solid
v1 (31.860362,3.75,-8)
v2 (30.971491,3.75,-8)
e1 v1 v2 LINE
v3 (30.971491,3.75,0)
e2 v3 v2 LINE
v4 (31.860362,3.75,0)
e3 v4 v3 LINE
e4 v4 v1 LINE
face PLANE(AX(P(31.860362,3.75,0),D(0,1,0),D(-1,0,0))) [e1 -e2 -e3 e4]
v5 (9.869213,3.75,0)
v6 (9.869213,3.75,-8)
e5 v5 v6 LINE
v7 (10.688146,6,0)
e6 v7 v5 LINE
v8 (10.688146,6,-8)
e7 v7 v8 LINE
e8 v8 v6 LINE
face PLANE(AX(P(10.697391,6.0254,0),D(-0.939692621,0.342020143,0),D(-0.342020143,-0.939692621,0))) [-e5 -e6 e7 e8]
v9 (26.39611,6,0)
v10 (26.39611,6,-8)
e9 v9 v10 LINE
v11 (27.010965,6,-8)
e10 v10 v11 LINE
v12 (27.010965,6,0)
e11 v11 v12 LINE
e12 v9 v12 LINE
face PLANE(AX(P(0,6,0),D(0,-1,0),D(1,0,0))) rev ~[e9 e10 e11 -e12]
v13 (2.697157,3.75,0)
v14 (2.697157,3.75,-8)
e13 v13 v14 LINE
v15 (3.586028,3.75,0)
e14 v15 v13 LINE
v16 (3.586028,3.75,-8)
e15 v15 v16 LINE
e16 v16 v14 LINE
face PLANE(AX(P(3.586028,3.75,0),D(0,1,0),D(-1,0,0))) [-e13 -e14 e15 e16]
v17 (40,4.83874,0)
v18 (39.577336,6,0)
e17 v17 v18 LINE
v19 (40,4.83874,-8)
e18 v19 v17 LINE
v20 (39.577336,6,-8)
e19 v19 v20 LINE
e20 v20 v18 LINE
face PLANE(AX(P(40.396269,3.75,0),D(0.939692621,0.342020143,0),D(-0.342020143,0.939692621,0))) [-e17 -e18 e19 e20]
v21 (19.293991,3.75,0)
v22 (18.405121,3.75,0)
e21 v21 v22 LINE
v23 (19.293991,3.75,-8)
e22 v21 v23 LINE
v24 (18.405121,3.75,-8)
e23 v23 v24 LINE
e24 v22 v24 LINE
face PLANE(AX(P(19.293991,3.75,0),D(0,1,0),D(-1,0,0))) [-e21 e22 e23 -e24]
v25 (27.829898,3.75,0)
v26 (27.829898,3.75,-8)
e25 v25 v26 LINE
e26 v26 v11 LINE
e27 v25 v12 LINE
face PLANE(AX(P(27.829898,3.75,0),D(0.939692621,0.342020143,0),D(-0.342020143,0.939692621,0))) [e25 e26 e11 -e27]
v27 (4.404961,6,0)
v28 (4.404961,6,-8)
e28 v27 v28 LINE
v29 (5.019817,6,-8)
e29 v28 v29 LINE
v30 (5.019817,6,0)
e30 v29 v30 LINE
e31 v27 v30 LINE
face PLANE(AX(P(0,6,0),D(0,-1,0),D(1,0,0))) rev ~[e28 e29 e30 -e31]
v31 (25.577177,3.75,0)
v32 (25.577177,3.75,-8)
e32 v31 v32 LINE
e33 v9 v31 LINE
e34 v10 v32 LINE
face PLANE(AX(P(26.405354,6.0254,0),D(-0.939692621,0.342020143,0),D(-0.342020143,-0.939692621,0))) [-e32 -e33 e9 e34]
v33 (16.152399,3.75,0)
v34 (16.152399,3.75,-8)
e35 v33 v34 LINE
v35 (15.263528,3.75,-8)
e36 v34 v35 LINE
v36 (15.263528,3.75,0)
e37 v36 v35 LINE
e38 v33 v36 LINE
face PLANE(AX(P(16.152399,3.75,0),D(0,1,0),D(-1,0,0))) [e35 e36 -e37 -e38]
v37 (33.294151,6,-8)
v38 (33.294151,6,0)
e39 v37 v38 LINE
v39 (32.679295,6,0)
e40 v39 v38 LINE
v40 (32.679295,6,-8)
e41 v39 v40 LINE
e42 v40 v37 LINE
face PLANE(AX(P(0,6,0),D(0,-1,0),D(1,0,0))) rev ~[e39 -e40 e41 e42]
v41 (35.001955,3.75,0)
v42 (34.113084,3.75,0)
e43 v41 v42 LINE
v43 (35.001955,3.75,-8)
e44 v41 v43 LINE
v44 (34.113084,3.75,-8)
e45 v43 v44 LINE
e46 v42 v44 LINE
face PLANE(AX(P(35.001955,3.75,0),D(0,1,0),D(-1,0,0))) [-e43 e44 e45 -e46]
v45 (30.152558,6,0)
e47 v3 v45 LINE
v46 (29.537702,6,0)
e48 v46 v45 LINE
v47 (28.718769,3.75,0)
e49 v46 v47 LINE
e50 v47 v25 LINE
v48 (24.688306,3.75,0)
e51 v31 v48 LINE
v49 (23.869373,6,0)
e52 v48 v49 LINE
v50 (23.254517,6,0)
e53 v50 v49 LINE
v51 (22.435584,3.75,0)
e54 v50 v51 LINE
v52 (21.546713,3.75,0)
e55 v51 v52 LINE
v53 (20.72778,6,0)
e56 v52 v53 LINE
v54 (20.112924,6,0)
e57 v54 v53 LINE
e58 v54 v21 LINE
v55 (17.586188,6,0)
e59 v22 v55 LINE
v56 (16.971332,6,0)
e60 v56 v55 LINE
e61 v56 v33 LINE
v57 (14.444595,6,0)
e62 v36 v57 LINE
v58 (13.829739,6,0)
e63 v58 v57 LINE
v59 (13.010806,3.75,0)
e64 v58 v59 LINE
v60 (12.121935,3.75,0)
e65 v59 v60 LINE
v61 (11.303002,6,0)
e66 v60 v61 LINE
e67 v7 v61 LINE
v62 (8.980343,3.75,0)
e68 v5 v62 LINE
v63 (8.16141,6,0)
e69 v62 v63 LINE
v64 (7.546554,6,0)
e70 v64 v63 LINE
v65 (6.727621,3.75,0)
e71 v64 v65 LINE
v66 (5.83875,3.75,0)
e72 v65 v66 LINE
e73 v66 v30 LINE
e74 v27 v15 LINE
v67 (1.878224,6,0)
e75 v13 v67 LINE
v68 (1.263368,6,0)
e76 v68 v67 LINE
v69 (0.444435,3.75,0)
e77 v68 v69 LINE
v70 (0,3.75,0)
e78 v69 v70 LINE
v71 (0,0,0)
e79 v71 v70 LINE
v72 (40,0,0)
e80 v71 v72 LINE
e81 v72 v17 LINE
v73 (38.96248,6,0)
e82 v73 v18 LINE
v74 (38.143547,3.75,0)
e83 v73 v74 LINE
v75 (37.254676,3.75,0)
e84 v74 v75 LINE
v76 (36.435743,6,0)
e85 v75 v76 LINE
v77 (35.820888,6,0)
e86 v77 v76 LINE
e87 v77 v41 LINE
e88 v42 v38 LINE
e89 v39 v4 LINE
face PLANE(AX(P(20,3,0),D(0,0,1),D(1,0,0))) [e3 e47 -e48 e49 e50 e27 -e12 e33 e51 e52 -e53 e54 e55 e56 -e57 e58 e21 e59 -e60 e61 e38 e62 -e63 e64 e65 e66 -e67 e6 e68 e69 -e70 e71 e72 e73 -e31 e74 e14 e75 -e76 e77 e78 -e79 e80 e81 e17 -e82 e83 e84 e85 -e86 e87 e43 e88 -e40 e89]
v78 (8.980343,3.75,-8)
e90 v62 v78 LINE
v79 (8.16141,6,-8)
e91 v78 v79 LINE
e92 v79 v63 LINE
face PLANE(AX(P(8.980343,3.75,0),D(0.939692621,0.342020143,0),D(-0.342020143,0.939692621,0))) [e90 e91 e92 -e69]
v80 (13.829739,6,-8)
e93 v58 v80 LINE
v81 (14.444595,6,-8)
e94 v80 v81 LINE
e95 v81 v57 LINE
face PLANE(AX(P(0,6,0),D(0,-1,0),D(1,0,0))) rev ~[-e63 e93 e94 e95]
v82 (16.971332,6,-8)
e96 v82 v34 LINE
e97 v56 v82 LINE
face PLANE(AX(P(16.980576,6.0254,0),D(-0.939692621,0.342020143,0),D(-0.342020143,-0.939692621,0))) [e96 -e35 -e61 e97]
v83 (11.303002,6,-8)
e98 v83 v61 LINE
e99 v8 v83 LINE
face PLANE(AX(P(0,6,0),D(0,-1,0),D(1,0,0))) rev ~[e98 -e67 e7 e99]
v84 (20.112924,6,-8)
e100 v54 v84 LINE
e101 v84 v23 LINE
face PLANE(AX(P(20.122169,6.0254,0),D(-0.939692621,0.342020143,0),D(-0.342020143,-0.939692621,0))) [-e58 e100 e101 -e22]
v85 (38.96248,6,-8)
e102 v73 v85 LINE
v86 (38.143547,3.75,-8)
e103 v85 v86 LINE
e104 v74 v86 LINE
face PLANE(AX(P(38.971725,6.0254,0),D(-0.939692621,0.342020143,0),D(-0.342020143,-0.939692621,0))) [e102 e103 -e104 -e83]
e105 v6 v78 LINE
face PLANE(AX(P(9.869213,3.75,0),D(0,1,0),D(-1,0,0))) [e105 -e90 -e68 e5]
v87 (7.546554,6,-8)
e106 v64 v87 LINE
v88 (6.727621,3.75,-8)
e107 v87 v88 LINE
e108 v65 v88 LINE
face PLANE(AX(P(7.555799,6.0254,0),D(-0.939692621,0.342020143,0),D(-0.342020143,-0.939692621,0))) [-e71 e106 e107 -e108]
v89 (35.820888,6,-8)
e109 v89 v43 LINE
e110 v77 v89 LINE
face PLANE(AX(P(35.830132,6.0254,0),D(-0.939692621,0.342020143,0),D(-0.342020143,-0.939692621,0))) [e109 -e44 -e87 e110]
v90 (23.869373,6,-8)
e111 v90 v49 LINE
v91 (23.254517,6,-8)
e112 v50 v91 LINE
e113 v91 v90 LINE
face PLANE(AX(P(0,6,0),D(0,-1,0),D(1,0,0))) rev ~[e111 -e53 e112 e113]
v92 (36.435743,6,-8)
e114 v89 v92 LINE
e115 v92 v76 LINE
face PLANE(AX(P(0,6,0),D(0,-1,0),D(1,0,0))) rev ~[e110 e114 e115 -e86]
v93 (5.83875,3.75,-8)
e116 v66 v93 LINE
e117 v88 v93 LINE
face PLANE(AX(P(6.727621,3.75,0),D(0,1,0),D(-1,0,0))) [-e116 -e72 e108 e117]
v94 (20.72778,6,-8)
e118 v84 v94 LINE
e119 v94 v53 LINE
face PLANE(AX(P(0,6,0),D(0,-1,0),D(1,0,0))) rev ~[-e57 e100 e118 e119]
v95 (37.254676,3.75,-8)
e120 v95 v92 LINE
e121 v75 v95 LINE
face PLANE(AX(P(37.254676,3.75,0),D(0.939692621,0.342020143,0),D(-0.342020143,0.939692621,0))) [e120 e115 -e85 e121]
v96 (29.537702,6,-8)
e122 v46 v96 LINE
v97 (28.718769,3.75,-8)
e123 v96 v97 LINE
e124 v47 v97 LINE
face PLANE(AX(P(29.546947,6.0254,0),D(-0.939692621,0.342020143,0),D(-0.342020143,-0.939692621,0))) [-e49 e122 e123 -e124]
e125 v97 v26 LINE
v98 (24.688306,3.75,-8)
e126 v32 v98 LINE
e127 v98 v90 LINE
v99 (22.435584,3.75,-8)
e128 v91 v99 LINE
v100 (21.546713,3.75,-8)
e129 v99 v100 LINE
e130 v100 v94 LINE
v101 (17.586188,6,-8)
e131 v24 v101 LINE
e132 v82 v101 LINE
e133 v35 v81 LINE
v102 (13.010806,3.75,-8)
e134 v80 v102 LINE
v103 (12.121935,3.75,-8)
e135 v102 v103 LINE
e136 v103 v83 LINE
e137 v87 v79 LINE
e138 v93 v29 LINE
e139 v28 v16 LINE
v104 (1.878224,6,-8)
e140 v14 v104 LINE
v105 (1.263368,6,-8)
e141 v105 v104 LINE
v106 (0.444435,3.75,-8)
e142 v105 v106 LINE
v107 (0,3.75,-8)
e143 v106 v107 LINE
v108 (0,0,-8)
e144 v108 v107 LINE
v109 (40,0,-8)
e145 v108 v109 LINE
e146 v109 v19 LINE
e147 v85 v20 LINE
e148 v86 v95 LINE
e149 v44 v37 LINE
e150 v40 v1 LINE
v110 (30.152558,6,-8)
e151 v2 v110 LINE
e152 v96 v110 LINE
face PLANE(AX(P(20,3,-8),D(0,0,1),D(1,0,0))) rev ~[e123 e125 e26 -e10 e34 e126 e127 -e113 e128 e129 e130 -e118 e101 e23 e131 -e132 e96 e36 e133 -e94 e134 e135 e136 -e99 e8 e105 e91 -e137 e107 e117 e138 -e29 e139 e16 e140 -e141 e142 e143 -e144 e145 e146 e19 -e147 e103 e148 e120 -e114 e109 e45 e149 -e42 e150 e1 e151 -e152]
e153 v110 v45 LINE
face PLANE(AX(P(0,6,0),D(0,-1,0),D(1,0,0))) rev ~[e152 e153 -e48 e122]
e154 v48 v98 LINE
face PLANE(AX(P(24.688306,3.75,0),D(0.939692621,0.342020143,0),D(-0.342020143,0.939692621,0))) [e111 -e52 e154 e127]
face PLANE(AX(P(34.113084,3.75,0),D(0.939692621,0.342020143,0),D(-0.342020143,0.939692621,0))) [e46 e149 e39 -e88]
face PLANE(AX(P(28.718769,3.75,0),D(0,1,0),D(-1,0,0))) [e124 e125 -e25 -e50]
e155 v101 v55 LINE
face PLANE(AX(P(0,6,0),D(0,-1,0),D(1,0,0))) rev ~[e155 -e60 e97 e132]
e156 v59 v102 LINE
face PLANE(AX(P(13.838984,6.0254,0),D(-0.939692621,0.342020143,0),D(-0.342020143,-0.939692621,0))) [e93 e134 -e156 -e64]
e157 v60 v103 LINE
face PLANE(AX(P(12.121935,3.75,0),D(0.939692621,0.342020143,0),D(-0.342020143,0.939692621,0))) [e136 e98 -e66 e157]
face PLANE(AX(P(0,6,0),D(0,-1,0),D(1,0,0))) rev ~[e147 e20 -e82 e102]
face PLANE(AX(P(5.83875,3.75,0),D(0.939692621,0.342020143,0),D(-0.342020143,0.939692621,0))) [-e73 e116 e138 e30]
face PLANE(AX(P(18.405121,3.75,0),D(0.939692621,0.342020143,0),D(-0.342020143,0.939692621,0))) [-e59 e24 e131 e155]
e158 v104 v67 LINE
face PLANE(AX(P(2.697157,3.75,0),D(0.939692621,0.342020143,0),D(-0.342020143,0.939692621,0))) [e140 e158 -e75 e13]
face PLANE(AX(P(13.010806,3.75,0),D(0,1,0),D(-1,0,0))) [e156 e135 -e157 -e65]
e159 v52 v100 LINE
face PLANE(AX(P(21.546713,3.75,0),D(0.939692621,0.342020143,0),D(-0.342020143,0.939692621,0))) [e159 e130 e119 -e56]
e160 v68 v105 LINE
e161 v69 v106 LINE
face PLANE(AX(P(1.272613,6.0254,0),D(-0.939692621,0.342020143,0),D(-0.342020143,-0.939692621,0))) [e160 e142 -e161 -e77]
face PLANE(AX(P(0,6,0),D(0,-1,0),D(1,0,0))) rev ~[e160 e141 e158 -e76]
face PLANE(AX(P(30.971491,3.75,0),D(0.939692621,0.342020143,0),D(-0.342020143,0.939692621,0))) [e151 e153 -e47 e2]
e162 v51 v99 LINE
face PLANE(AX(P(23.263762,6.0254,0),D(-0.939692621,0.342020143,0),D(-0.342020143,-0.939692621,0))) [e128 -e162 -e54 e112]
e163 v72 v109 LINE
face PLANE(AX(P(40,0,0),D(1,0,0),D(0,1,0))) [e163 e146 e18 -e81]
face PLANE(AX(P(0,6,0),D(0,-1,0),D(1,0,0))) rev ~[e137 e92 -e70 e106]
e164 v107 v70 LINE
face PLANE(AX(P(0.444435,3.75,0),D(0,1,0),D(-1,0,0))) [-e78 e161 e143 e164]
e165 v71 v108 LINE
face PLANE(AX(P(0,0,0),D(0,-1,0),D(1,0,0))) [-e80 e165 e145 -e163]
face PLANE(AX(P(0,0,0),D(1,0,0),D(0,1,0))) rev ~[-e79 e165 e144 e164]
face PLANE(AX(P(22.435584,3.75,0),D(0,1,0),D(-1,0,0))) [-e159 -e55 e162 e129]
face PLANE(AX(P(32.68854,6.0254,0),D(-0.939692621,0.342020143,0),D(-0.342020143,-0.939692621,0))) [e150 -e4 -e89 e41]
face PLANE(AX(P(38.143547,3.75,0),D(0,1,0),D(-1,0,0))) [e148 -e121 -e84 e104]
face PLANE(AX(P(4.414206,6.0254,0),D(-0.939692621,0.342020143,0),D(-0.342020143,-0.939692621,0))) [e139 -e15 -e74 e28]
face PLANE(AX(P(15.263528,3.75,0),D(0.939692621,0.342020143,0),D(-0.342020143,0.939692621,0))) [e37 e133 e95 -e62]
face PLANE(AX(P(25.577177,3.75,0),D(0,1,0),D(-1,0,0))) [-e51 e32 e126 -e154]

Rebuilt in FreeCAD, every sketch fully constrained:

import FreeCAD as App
import Part
import Sketcher
from FreeCAD import Vector
Q = App.Units.Quantity


def add_polygon(sketch, points):
    """Adds a closed chain of lines whose ends are joined by coincident constraints."""
    first, n = sketch.GeometryCount, len(points)
    for a, b in zip(points, points[1:] + points[:1]):
        sketch.addGeometry(Part.LineSegment(App.Vector(*a, 0), App.Vector(*b, 0)), False)
    for i in range(n):
        sketch.addConstraint(Sketcher.Constraint("Coincident", first + i, 2, first + (i + 1) % n, 1))

doc = App.newDocument("Part")
params = doc.addObject("Spreadsheet::Sheet", "Params")
for row, (alias, value) in enumerate([
    ("sketch1_width", "40 mm"),
    ("sketch1_height", "6 mm"),
    ("pad1_length", "8 mm"),
    ("linearpattern_pitch", "3.141593 mm"),
], start=1):
    params.set(f"A{row}", alias)
    params.set(f"B{row}", "=" + value)
    params.setAlias(f"B{row}", alias)

body = doc.addObject("PartDesign::Body", "Body")

# Sketch on XY plane
sketch1 = body.newObject("Sketcher::SketchObject", "Sketch")
sketch1.AttachmentSupport = (doc.getObject("XY_Plane"), [""])
sketch1.MapMode = "FlatFace"
add_polygon(sketch1, [(0, 6), (0, 0), (40, 0), (40, 6)])  # lines 0-3
sketch1.addConstraint([
    Sketcher.Constraint("Vertical", 0),
    Sketcher.Constraint("Horizontal", 1),
    Sketcher.Constraint("Vertical", 2),
    Sketcher.Constraint("Horizontal", 3),
    Sketcher.Constraint("Coincident", 0, 2, -1, 1),
    Sketcher.Constraint("DistanceX", 1, 1, 1, 2, Q("40 mm")),
    Sketcher.Constraint("DistanceY", 0, 2, 0, 1, Q("6 mm")),
])
sketch1.setExpression("Constraints[9]", "Params.sketch1_width")
sketch1.setExpression("Constraints[10]", "Params.sketch1_height")
pad1 = body.newObject("PartDesign::Pad", "Pad")
pad1.Profile = sketch1
pad1.setExpression("Length", "Params.pad1_length")
pad1.Reversed = True

# Sketch on XY plane
sketch2 = body.newObject("Sketcher::SketchObject", "Sketch001")
sketch2.AttachmentSupport = (doc.getObject("XY_Plane"), [""])
sketch2.MapMode = "FlatFace"
add_polygon(sketch2, [(-0.4, 3.8), (0.4, 3.8), (1.3, 6), (-1.3, 6)])  # lines 0-3
sketch2.addConstraint([
    Sketcher.Constraint("Horizontal", 0),
    Sketcher.Constraint("Horizontal", 2),
    Sketcher.Constraint("Equal", 1, 3),
    Sketcher.Constraint("Angle", 1, Q("70 deg")),
    Sketcher.Constraint("DistanceY", -1, 1, 0, 2, Q("3.75 mm")),
    Sketcher.Constraint("DistanceX", 0, 1, 0, 2, Q("0.888871 mm")),
    Sketcher.Constraint("DistanceY", -1, 1, 1, 2, Q("6.0254 mm")),
    Sketcher.Constraint("DistanceX", -1, 1, 0, 2, Q("0.444435 mm")),
])
pocket1 = body.newObject("PartDesign::Pocket", "Pocket")
pocket1.Profile = sketch2
pocket1.Type = "ThroughAll"
doc.recompute()

linearpattern = body.newObject("PartDesign::LinearPattern", "LinearPattern")
linearpattern.Originals = [pocket1]
linearpattern.Direction = (doc.getObject("X_Axis"), [""])
linearpattern.Mode = "offset"
linearpattern.setExpression("Offset", "Params.linearpattern_pitch")
linearpattern.Occurrences = 14
body.Tip = linearpattern

doc.recompute()
